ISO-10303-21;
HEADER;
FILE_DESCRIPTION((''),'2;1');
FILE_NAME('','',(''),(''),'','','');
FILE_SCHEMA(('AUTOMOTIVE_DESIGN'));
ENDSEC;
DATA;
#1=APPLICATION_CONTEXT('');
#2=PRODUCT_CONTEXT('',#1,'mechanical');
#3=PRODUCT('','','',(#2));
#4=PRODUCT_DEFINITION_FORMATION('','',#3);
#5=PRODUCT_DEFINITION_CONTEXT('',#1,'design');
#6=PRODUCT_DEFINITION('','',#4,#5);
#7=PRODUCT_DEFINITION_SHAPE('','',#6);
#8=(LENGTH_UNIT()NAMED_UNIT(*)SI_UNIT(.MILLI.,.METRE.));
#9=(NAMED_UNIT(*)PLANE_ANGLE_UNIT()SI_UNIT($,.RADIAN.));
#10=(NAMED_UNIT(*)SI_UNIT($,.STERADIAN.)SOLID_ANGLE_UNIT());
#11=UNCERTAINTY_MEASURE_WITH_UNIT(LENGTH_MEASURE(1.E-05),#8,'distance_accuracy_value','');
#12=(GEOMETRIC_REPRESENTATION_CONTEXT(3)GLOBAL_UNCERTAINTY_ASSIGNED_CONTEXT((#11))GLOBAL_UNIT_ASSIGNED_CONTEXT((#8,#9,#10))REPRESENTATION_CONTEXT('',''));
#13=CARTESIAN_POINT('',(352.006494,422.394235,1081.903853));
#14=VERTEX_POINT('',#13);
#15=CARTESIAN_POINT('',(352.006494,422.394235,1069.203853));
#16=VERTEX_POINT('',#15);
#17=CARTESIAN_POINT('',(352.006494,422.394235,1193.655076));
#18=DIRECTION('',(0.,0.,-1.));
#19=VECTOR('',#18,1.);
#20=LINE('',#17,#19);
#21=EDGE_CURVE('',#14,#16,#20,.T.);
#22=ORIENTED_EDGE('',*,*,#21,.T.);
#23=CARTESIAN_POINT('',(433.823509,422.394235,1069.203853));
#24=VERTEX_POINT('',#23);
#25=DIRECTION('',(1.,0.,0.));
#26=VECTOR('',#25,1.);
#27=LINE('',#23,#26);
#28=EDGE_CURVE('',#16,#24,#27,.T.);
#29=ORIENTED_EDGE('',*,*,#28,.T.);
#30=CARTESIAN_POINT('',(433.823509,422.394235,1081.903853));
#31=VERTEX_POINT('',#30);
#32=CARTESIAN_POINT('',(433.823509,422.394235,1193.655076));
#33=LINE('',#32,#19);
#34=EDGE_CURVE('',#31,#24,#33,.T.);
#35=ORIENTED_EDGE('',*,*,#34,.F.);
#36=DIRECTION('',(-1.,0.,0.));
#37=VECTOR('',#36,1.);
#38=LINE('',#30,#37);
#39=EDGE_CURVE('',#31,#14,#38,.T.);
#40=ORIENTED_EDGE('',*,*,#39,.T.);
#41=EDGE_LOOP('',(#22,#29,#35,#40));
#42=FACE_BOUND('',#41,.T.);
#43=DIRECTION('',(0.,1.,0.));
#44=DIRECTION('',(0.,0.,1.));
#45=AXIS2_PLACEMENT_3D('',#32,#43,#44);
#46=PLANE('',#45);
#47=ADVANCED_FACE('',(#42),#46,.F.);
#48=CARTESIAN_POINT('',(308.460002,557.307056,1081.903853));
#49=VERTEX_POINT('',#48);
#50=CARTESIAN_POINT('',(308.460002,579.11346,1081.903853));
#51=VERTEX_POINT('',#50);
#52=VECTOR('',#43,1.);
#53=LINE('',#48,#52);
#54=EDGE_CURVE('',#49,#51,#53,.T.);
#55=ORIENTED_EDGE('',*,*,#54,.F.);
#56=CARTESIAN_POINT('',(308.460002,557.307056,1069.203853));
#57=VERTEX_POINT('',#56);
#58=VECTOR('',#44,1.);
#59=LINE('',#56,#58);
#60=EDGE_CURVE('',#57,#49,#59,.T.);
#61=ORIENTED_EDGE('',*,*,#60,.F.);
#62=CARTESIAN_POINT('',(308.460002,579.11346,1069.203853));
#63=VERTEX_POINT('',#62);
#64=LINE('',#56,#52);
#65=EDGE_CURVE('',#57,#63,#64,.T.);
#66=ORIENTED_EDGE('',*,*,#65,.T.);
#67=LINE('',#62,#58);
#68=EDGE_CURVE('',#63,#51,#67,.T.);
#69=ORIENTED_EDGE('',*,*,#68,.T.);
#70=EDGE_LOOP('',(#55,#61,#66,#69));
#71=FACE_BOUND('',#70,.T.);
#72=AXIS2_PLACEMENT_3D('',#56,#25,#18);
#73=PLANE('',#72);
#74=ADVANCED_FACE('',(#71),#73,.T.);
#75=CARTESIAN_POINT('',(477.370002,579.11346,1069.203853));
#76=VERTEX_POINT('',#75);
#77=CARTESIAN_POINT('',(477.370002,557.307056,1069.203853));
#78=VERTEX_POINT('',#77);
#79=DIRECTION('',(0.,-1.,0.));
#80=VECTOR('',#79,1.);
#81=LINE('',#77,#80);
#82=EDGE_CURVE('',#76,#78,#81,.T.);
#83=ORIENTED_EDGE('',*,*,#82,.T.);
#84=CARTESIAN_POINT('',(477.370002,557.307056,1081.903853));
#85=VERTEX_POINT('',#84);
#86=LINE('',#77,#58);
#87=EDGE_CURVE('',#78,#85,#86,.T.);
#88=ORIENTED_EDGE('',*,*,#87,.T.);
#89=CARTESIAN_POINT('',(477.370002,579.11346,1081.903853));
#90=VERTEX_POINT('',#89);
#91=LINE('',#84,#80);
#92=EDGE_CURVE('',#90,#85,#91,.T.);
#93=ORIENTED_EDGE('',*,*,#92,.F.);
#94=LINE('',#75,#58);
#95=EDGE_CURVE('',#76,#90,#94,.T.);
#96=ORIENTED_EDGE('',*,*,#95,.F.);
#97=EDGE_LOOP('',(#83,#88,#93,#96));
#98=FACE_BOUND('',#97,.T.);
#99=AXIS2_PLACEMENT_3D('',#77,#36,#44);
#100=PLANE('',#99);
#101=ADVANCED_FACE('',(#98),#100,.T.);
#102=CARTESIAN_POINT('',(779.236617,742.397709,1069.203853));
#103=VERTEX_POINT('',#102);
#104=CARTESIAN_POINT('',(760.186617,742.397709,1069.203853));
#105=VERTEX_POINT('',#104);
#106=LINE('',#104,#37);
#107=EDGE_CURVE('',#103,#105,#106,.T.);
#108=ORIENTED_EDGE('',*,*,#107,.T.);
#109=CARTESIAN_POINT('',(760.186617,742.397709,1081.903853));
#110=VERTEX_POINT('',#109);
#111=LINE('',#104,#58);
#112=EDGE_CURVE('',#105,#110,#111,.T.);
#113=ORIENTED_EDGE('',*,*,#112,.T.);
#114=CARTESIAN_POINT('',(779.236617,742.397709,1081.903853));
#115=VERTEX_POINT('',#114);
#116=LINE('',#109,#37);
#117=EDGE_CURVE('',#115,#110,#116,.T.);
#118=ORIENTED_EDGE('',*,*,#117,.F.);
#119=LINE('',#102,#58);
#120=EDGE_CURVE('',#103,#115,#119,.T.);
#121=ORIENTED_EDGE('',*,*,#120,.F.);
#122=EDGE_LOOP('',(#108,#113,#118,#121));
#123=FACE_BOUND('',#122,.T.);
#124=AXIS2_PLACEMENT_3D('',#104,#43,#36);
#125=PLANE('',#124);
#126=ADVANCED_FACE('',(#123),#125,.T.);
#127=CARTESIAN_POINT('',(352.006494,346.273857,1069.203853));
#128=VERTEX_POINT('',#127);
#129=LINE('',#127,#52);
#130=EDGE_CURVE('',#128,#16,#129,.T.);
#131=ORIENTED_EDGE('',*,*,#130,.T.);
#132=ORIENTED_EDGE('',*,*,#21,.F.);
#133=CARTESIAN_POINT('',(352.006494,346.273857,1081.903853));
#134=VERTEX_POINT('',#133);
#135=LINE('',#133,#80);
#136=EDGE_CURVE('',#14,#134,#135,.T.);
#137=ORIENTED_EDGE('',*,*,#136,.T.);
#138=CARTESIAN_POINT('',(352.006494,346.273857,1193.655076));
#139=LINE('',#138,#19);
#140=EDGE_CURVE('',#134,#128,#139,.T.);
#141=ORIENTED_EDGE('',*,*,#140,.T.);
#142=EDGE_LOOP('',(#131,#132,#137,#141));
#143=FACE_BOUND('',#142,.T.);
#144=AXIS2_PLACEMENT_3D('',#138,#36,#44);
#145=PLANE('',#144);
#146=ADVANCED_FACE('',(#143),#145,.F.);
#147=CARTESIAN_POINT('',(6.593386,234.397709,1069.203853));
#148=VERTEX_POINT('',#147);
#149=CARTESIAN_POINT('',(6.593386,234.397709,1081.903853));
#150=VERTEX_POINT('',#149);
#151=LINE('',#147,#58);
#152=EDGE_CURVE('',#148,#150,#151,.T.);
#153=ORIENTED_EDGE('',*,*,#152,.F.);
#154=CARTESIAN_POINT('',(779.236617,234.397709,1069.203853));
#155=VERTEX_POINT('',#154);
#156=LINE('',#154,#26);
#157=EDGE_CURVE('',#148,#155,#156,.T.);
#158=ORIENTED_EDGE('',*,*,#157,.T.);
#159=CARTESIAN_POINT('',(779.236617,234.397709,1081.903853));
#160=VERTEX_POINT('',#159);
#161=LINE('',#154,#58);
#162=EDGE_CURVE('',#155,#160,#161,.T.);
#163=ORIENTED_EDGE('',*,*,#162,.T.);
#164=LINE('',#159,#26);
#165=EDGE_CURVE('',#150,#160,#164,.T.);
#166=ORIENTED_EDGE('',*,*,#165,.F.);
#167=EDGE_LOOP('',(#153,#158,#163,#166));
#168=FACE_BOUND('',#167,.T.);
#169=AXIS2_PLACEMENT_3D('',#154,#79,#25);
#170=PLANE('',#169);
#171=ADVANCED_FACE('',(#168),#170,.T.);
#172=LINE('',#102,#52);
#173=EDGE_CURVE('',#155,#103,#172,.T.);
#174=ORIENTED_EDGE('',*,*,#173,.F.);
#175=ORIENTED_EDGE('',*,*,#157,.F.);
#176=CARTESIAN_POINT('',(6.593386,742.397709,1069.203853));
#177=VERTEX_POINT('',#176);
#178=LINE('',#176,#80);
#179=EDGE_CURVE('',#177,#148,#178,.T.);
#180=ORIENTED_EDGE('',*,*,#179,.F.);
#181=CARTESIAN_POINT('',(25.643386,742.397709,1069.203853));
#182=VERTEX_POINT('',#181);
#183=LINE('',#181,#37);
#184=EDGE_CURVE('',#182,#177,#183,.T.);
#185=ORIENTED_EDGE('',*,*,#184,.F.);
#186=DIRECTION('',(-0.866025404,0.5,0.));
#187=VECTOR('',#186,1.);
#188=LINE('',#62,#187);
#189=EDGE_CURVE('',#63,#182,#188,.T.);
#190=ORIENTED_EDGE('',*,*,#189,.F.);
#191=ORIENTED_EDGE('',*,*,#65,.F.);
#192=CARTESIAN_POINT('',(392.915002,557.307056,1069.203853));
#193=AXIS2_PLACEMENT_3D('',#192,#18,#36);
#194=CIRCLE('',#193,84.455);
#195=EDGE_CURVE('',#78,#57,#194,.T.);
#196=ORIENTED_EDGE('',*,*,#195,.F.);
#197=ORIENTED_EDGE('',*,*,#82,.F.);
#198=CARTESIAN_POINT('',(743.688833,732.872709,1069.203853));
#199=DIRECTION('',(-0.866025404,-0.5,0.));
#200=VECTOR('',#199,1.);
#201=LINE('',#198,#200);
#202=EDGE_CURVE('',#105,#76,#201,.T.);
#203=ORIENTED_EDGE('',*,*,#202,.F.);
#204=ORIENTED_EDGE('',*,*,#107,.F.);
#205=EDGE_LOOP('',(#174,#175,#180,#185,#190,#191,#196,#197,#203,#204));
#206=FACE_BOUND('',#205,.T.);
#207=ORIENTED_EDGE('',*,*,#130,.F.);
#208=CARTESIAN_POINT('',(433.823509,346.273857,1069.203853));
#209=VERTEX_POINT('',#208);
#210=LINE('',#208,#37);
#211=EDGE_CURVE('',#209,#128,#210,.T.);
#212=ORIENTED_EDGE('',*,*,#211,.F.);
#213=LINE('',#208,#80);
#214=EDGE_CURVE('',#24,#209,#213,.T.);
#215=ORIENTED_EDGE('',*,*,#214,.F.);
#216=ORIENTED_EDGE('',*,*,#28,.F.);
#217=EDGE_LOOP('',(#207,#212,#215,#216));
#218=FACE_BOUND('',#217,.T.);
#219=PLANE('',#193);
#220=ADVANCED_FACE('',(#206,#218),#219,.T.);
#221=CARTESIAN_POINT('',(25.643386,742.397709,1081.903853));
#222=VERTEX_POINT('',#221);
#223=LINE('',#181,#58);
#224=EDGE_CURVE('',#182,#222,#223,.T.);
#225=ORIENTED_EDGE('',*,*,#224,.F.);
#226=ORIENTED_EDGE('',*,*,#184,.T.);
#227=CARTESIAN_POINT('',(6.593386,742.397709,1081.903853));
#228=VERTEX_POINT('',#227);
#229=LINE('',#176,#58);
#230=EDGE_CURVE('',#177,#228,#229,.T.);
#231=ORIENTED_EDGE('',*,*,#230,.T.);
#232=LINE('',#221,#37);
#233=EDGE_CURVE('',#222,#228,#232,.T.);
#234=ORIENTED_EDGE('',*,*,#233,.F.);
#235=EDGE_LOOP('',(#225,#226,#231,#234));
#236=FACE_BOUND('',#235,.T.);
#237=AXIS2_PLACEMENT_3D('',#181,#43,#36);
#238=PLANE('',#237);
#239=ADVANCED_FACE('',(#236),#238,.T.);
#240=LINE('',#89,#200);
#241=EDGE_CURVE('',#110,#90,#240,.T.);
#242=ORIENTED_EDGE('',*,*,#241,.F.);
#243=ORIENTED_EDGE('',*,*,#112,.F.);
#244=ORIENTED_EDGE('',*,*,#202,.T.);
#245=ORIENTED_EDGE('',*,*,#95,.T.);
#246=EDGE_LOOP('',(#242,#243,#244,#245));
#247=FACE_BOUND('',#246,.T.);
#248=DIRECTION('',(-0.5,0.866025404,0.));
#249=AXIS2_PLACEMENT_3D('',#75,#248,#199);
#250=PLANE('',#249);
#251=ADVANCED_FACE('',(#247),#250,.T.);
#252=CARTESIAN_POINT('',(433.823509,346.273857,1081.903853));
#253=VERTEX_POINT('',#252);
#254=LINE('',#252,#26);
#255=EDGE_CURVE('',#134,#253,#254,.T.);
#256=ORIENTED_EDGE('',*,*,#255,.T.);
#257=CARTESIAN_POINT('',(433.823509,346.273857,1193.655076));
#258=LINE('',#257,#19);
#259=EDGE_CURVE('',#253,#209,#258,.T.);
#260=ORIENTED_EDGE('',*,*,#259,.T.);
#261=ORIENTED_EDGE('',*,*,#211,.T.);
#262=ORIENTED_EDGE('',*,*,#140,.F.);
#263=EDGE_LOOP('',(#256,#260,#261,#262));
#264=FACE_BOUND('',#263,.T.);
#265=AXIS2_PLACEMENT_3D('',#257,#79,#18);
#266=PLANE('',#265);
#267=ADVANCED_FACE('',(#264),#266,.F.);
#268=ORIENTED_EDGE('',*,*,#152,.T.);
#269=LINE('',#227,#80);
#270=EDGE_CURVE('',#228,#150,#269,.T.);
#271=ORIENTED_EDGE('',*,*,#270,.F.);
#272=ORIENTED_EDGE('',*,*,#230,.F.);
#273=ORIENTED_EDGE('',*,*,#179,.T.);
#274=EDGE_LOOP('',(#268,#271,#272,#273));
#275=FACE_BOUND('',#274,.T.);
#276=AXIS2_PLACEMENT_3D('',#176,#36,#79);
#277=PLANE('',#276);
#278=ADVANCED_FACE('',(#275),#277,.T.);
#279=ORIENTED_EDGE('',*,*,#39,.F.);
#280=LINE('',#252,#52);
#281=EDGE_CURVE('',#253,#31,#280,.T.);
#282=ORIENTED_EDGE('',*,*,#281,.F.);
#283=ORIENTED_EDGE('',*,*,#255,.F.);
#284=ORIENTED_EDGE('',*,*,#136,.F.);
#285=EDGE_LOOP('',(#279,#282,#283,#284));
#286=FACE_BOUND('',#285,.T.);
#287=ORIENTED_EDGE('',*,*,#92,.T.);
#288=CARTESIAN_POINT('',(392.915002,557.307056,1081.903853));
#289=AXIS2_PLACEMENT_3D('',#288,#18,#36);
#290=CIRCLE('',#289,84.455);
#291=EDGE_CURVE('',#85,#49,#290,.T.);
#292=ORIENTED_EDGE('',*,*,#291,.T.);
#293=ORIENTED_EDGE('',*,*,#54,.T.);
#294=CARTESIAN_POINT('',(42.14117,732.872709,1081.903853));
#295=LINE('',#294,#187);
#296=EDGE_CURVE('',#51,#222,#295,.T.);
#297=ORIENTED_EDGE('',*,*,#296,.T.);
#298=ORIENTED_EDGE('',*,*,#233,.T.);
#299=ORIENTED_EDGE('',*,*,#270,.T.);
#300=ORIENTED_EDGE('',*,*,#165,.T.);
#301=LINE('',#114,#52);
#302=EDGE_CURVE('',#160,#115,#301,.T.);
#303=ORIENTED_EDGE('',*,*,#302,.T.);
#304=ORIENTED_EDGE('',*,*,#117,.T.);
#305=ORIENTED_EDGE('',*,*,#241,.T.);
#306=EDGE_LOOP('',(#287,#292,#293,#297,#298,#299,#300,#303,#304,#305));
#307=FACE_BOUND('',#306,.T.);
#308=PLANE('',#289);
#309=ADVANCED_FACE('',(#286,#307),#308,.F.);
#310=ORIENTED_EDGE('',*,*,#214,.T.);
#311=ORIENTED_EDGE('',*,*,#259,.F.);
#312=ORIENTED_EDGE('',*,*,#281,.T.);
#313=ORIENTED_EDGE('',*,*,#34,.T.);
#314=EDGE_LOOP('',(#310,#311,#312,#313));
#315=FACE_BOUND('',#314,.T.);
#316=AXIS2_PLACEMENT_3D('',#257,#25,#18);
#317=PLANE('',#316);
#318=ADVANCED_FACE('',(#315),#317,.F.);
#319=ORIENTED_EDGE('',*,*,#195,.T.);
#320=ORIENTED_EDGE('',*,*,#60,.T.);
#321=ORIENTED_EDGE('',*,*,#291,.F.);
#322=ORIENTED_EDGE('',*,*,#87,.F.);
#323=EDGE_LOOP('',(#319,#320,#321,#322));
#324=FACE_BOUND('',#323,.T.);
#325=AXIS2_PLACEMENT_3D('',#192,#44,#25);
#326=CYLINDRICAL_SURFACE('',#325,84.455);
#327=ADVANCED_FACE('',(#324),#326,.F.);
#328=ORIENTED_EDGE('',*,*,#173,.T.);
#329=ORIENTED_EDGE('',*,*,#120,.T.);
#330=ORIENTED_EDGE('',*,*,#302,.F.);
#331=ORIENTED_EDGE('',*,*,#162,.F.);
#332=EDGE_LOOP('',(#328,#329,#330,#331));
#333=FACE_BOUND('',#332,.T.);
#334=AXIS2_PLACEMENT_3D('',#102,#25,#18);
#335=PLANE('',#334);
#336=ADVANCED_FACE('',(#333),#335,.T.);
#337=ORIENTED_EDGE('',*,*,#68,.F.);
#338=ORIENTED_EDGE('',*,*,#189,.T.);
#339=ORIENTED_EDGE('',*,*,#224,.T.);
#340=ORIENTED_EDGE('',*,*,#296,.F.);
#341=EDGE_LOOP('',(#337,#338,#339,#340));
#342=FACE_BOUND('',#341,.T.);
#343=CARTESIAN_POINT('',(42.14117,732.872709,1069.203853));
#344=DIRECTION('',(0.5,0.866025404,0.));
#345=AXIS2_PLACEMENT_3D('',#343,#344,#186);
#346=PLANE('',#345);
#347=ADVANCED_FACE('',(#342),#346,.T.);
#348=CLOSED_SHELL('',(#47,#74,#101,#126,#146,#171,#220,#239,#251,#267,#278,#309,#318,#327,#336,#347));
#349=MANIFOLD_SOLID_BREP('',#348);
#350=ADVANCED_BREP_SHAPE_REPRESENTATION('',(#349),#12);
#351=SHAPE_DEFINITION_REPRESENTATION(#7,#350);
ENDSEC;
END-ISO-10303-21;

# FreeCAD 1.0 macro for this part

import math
import FreeCAD as App
import Part
import Sketcher
Q = App.Units.Quantity


def add_polygon(sketch, points):
    """Adds a closed chain of lines whose ends are joined by coincident constraints."""
    first, n = sketch.GeometryCount, len(points)
    for a, b in zip(points, points[1:] + points[:1]):
        sketch.addGeometry(Part.LineSegment(App.Vector(*a, 0), App.Vector(*b, 0)), False)
    for i in range(n):
        sketch.addConstraint(Sketcher.Constraint("Coincident", first + i, 2, first + (i + 1) % n, 1))

doc = App.newDocument("Part")
body = doc.addObject("PartDesign::Body", "Body")

# Sketch on XY plane
sketch1 = body.newObject("Sketcher::SketchObject", "Sketch")
sketch1.AttachmentSupport = (doc.getObject("XY_Plane"), [""])
sketch1.MapMode = "FlatFace"
sketch1.AttachmentOffset = App.Placement(App.Vector(0, 0, 1081.903853), App.Rotation())
sketch1.addGeometry([
    Part.LineSegment(App.Vector(744, 733, 0), App.Vector(477, 579, 0)),  # 0
    Part.LineSegment(App.Vector(477, 579, 0), App.Vector(477, 557, 0)),  # 1
    Part.ArcOfCircle(Part.Circle(App.Vector(393, 557, 0), App.Vector(0, 0, 1), 84), math.radians(180), math.radians(360)),  # 2
    Part.LineSegment(App.Vector(308, 557, 0), App.Vector(308, 579, 0)),  # 3
    Part.LineSegment(App.Vector(308, 579, 0), App.Vector(42, 733, 0)),  # 4
    Part.LineSegment(App.Vector(42, 733, 0), App.Vector(26, 742, 0)),  # 5
    Part.LineSegment(App.Vector(26, 742, 0), App.Vector(7, 742, 0)),  # 6
    Part.LineSegment(App.Vector(7, 742, 0), App.Vector(7, 234, 0)),  # 7
    Part.LineSegment(App.Vector(7, 234, 0), App.Vector(779, 234, 0)),  # 8
    Part.LineSegment(App.Vector(779, 234, 0), App.Vector(779, 742, 0)),  # 9
    Part.LineSegment(App.Vector(779, 742, 0), App.Vector(760, 742, 0)),  # 10
    Part.LineSegment(App.Vector(760, 742, 0), App.Vector(744, 733, 0)),  # 11
], False)
sketch1.addConstraint([
    Sketcher.Constraint("Coincident", 0, 2, 1, 1),
    Sketcher.Constraint("Tangent", 1, 2, 2, 2),
    Sketcher.Constraint("Tangent", 2, 1, 3, 1),
    Sketcher.Constraint("Coincident", 3, 2, 4, 1),
    Sketcher.Constraint("Coincident", 4, 2, 5, 1),
    Sketcher.Constraint("Coincident", 5, 2, 6, 1),
    Sketcher.Constraint("Coincident", 6, 2, 7, 1),
    Sketcher.Constraint("Coincident", 7, 2, 8, 1),
    Sketcher.Constraint("Coincident", 8, 2, 9, 1),
    Sketcher.Constraint("Coincident", 9, 2, 10, 1),
    Sketcher.Constraint("Coincident", 10, 2, 11, 1),
    Sketcher.Constraint("Coincident", 11, 2, 0, 1),
    Sketcher.Constraint("Vertical", 1),
    Sketcher.Constraint("Vertical", 3),
    Sketcher.Constraint("Horizontal", 6),
    Sketcher.Constraint("Vertical", 7),
    Sketcher.Constraint("Horizontal", 8),
    Sketcher.Constraint("Vertical", 9),
    Sketcher.Constraint("Horizontal", 10),
    Sketcher.Constraint("Parallel", 4, 5),
    Sketcher.Constraint("Parallel", 0, 11),
    Sketcher.Constraint("Horizontal", 0, 2, 3, 2),
    Sketcher.Constraint("Horizontal", 6, 2, 9, 2),
    Sketcher.Constraint("Horizontal", 4, 2, 11, 2),
    Sketcher.Constraint("Equal", 6, 10),
    Sketcher.Constraint("Equal", 0, 4),
    Sketcher.Constraint("DistanceY", 7, 2, 7, 1, Q("20 in")),
    Sketcher.Constraint("Angle", 0, Q("-150 deg")),
    Sketcher.Constraint("Radius", 2, Q("3.325 in")),
    Sketcher.Constraint("DistanceX", 6, 2, 6, 1, Q("0.75 in")),
    Sketcher.Constraint("Distance", 5, Q("0.75 in")),
    Sketcher.Constraint("DistanceX", 8, 1, 8, 2, 772.64323),
    Sketcher.Constraint("DistanceX", -1, 1, 2, 3, 392.915002),
    Sketcher.Constraint("DistanceY", 1, 2, 1, 1, 21.806404),
    Sketcher.Constraint("DistanceY", -1, 1, 0, 2, 579.11346),
])
pad1 = body.newObject("PartDesign::Pad", "Pad")
pad1.Profile = sketch1
pad1.Length = Q("0.5 in")
pad1.Reversed = True

# Sketch on XY plane
sketch2 = body.newObject("Sketcher::SketchObject", "Sketch001")
sketch2.AttachmentSupport = (doc.getObject("XY_Plane"), [""])
sketch2.MapMode = "FlatFace"
sketch2.AttachmentOffset = App.Placement(App.Vector(0, 0, 1069.203853), App.Rotation())
add_polygon(sketch2, [(434, 422), (434, 346), (352, 346), (352, 422)])  # lines 0-3
sketch2.addConstraint([
    Sketcher.Constraint("Vertical", 0),
    Sketcher.Constraint("Horizontal", 1),
    Sketcher.Constraint("Vertical", 2),
    Sketcher.Constraint("Horizontal", 3),
    Sketcher.Constraint("DistanceY", 0, 2, 0, 1, 76.120378),
    Sketcher.Constraint("DistanceX", 1, 2, 1, 1, 81.817015),
    Sketcher.Constraint("DistanceX", -1, 1, 0, 2, 433.823509),
    Sketcher.Constraint("DistanceY", -1, 1, 0, 2, 346.273857),
])
pocket1 = body.newObject("PartDesign::Pocket", "Pocket")
pocket1.Profile = sketch2
pocket1.Length = Q("0.5 in")
pocket1.Reversed = True

doc.recompute()
